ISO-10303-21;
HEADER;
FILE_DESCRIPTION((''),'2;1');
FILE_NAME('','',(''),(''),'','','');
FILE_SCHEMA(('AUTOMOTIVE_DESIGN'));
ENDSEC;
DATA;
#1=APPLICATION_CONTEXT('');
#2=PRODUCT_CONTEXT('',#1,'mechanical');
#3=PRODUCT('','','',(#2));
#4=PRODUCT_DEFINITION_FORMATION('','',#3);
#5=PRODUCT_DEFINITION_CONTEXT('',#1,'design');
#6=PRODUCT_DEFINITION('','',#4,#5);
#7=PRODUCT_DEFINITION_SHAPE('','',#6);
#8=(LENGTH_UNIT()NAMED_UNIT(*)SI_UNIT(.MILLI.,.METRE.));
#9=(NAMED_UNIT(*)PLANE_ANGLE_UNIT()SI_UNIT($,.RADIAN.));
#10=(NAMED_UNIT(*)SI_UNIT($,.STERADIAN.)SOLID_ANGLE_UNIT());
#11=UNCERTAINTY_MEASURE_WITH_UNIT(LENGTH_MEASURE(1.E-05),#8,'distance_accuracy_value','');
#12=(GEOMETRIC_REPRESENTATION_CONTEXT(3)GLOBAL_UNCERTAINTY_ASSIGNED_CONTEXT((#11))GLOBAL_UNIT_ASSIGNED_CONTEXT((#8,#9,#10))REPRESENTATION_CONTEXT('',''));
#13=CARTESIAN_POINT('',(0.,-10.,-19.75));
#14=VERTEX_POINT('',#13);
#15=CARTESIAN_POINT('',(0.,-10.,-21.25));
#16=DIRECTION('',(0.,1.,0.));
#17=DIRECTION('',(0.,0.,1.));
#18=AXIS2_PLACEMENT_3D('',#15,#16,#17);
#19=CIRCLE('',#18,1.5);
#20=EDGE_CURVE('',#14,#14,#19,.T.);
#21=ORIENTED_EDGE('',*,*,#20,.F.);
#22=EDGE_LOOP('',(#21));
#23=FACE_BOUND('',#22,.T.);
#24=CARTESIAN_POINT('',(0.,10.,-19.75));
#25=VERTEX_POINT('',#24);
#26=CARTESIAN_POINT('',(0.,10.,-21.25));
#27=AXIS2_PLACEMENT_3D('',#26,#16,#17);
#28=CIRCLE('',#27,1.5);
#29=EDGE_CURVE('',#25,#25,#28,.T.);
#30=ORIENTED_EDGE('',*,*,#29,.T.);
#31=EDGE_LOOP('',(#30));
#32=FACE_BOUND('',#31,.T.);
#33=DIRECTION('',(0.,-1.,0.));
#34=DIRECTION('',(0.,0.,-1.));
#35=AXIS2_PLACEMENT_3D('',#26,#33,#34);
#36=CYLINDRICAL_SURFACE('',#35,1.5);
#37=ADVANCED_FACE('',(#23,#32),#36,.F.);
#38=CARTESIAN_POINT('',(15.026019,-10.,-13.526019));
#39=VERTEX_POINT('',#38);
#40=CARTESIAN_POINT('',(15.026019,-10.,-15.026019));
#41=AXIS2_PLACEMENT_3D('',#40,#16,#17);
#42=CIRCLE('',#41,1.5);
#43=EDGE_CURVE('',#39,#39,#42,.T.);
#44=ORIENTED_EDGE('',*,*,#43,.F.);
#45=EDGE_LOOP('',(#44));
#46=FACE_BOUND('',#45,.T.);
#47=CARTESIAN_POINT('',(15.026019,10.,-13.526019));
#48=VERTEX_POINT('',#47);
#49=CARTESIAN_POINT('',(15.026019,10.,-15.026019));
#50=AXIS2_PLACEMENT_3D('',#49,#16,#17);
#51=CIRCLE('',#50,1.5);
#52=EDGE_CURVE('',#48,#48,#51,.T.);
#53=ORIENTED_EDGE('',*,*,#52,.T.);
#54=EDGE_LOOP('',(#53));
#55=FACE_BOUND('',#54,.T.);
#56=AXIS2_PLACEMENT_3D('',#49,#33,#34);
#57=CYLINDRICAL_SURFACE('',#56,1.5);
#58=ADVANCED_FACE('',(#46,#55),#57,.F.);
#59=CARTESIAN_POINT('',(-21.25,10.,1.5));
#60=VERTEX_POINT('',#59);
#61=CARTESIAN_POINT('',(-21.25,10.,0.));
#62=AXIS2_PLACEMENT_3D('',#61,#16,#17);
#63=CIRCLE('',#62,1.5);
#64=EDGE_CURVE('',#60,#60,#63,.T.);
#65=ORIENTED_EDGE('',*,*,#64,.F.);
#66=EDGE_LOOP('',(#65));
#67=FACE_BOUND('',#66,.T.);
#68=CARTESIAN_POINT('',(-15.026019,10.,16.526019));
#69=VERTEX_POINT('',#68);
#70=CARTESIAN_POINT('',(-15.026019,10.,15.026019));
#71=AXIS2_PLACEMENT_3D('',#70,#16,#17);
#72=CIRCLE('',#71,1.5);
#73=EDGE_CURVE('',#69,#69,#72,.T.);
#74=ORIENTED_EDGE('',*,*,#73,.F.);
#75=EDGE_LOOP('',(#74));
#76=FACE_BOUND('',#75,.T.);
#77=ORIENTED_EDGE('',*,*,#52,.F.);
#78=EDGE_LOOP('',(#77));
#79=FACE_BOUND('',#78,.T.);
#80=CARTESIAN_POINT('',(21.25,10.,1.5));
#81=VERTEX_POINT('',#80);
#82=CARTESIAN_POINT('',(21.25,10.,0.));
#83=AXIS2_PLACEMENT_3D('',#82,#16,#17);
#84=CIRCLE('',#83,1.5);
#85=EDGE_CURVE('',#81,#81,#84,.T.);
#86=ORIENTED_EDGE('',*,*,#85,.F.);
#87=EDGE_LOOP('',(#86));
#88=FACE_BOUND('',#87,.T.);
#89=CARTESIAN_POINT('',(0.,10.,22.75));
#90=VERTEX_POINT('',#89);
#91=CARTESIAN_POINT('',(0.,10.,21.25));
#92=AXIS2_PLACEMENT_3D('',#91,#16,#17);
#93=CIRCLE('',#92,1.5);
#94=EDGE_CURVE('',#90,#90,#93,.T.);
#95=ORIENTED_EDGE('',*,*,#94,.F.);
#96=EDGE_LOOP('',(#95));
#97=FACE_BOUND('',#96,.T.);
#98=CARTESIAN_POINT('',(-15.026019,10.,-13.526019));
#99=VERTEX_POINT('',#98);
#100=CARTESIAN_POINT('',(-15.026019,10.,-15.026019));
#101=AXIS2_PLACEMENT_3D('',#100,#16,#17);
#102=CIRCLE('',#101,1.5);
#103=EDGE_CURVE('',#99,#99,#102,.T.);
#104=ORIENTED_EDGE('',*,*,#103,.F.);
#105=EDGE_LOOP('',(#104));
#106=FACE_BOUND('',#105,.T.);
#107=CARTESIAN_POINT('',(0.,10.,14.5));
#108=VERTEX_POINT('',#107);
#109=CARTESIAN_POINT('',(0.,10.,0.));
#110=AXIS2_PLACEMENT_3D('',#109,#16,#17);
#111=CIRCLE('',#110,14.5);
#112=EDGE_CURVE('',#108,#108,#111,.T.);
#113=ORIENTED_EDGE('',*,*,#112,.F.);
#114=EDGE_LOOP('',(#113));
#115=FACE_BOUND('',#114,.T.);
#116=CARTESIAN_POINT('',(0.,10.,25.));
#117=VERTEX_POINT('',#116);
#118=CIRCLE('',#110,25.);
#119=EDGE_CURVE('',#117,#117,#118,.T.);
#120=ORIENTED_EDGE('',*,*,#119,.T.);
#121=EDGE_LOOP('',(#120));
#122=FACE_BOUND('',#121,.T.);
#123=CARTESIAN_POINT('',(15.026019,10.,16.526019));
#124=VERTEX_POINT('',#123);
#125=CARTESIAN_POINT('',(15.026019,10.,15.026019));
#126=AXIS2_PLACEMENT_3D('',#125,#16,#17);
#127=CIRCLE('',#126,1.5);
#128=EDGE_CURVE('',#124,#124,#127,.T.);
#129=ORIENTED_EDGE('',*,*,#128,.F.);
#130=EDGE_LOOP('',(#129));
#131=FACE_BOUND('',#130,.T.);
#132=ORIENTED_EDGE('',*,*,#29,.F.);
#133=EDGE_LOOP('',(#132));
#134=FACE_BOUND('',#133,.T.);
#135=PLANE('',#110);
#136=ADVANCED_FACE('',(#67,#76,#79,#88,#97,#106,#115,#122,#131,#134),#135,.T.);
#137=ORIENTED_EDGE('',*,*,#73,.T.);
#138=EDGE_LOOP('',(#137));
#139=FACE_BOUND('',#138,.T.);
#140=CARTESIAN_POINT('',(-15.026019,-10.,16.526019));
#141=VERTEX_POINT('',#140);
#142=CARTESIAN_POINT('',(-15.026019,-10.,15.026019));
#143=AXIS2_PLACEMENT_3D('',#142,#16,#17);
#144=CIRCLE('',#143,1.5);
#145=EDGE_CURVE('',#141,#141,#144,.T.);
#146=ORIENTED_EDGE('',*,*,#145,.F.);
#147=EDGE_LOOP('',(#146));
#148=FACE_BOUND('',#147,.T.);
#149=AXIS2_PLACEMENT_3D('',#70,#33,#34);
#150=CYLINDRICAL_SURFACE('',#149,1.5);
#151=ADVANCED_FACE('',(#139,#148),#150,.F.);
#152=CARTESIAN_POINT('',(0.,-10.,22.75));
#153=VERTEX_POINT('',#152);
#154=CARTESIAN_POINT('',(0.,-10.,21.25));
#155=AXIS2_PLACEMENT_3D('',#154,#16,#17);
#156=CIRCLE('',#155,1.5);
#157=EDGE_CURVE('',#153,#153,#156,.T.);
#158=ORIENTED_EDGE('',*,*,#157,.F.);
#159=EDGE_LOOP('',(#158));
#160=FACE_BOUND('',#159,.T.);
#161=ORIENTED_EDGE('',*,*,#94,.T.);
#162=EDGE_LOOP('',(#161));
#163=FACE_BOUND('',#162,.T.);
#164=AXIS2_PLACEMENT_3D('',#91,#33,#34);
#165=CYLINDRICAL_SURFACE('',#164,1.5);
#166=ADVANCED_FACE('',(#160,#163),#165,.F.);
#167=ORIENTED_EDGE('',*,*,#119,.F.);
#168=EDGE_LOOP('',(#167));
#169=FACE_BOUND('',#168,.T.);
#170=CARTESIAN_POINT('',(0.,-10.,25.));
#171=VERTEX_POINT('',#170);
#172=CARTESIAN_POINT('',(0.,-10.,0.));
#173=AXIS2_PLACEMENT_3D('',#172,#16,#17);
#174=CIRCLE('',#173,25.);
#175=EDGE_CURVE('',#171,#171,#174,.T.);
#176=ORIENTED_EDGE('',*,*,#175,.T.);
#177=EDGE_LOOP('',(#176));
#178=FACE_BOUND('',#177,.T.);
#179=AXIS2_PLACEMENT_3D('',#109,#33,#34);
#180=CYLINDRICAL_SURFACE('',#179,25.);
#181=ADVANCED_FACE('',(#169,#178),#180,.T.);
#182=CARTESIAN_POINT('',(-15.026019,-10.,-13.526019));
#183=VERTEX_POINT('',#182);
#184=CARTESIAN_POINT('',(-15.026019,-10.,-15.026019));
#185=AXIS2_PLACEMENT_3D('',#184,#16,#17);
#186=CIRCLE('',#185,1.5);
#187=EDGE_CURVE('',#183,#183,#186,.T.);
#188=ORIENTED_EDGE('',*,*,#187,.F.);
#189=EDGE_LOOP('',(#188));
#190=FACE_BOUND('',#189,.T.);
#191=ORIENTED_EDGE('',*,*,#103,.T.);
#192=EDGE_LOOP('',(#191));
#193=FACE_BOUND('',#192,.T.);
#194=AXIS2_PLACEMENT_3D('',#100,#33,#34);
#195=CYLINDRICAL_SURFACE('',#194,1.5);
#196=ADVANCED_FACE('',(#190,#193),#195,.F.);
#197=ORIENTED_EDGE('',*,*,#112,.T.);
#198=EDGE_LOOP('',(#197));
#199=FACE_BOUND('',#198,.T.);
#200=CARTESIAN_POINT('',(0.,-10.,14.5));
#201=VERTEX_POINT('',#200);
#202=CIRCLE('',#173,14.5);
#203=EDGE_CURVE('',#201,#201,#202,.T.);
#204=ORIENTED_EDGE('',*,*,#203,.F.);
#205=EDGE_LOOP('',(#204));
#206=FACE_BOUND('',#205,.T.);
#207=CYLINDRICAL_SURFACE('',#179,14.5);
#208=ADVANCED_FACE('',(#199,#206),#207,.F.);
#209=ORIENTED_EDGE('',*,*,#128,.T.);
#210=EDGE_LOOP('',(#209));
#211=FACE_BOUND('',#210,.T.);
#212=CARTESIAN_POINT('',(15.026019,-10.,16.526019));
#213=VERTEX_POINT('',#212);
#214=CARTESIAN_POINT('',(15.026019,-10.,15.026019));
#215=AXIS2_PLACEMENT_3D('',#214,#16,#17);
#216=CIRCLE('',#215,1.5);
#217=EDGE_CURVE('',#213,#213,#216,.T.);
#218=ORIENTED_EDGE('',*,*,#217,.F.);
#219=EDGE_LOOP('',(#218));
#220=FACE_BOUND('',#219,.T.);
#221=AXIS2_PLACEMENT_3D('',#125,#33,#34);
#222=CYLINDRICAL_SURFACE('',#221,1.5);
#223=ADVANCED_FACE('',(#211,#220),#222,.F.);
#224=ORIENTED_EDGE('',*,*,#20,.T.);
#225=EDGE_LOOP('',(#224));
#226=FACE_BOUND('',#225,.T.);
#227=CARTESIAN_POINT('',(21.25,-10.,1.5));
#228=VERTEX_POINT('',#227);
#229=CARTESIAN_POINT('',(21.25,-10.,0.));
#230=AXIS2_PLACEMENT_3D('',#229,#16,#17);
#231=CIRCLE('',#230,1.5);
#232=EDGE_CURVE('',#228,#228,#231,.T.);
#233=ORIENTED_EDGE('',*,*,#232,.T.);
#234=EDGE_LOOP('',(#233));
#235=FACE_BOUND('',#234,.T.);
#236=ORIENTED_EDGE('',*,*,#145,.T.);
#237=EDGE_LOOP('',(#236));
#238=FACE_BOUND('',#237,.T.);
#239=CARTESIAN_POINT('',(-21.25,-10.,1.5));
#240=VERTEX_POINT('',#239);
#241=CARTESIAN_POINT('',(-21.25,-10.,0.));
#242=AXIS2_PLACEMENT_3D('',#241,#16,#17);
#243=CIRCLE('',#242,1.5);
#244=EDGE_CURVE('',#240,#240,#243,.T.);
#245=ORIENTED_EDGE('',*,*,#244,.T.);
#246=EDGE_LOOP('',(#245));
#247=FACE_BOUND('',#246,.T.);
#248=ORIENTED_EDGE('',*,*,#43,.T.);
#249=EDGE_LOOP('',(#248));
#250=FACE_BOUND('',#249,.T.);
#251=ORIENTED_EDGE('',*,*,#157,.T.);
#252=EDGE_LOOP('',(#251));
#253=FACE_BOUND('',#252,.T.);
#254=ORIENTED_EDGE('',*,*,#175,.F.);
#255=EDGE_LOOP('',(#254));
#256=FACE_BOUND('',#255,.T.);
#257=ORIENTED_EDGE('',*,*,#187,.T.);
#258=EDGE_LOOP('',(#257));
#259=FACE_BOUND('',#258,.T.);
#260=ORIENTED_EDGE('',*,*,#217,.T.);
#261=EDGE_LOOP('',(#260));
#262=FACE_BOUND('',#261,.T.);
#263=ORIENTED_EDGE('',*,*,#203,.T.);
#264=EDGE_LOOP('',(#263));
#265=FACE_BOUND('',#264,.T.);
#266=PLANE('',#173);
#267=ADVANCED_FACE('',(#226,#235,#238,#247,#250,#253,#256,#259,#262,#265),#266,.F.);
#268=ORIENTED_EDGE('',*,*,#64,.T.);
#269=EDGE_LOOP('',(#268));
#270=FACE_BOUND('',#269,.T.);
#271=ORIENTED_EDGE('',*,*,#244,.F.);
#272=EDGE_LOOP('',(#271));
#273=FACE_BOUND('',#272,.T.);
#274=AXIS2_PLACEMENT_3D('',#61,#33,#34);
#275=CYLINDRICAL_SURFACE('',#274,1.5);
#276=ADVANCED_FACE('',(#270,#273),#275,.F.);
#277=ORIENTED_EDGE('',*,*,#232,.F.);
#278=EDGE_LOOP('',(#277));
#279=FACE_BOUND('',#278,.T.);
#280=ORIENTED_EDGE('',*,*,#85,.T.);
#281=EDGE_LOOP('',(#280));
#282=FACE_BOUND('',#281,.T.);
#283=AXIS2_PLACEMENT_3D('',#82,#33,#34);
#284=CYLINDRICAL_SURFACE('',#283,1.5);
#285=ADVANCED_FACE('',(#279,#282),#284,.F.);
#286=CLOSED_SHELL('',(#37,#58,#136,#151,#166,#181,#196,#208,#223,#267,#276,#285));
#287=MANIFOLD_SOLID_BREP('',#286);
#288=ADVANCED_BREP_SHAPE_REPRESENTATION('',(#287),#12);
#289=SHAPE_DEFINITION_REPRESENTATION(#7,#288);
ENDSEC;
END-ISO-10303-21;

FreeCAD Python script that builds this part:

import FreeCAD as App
import Part
import Sketcher
from FreeCAD import Vector
Q = App.Units.Quantity

doc = App.newDocument("Part")
body = doc.addObject("PartDesign::Body", "Body")

# Sketch on XZ plane
sketch1 = body.newObject("Sketcher::SketchObject", "Sketch")
sketch1.AttachmentSupport = (doc.getObject("XZ_Plane"), [""])
sketch1.MapMode = "FlatFace"
sketch1.addGeometry(Part.Circle(Vector(0, 0, 0), Vector(0, 0, 1), 25), False)
sketch1.addGeometry(Part.Circle(Vector(-15, -15, 0), Vector(0, 0, 1), 1.5), False)
sketch1.addGeometry(Part.Circle(Vector(0, -21.2, 0), Vector(0, 0, 1), 1.5), False)
sketch1.addGeometry(Part.Circle(Vector(-21.2, 0, 0), Vector(0, 0, 1), 1.5), False)
sketch1.addGeometry(Part.Circle(Vector(-15, 15, 0), Vector(0, 0, 1), 1.5), False)
sketch1.addGeometry(Part.Circle(Vector(15, -15, 0), Vector(0, 0, 1), 1.5), False)
sketch1.addGeometry(Part.Circle(Vector(21.2, 0, 0), Vector(0, 0, 1), 1.5), False)
sketch1.addGeometry(Part.Circle(Vector(0, 0, 0), Vector(0, 0, 1), 14.5), False)
sketch1.addGeometry(Part.Circle(Vector(0, 21.2, 0), Vector(0, 0, 1), 1.5), False)
sketch1.addGeometry(Part.Circle(Vector(15, 15, 0), Vector(0, 0, 1), 1.5), False)
sketch1.addConstraint(Sketcher.Constraint("Coincident", 0, 3, -1, 1))
sketch1.addConstraint(Sketcher.Constraint("Coincident", 7, 3, -1, 1))
sketch1.addConstraint(Sketcher.Constraint("Equal", 1, 2))
sketch1.addConstraint(Sketcher.Constraint("Equal", 2, 3))
sketch1.addConstraint(Sketcher.Constraint("Equal", 3, 4))
sketch1.addConstraint(Sketcher.Constraint("Equal", 4, 5))
sketch1.addConstraint(Sketcher.Constraint("Equal", 5, 6))
sketch1.addConstraint(Sketcher.Constraint("Equal", 6, 8))
sketch1.addConstraint(Sketcher.Constraint("Equal", 8, 9))
sketch1.addConstraint(Sketcher.Constraint("Symmetric", 4, 3, 5, 3, -1, 1))
sketch1.addConstraint(Sketcher.Constraint("Symmetric", 3, 3, 6, 3, -1, 1))
sketch1.addConstraint(Sketcher.Constraint("Symmetric", 2, 3, 8, 3, -1, 1))
sketch1.addConstraint(Sketcher.Constraint("Symmetric", 1, 3, 9, 3, -1, 1))
sketch1.addConstraint(Sketcher.Constraint("Symmetric", 1, 3, 5, 3, -2))
sketch1.addConstraint(Sketcher.Constraint("PointOnObject", 2, 3, -2))
sketch1.addConstraint(Sketcher.Constraint("PointOnObject", 3, 3, -1))
sketch1.addConstraint(Sketcher.Constraint("Diameter", 0, Q("50 mm")))
sketch1.addConstraint(Sketcher.Constraint("Diameter", 1, Q("3 mm")))
sketch1.addConstraint(Sketcher.Constraint("Diameter", 7, Q("29 mm")))
sketch1.addConstraint(Sketcher.Constraint("DistanceY", 2, 3, -1, 1, Q("21.25 mm")))
sketch1.addConstraint(Sketcher.Constraint("DistanceX", 3, 3, -1, 1, Q("21.25 mm")))
sketch1.addConstraint(Sketcher.Constraint("DistanceX", 1, 3, -1, 1, Q("15.026019 mm")))
sketch1.addConstraint(Sketcher.Constraint("DistanceY", 1, 3, -1, 1, Q("15.026019 mm")))
pad1 = body.newObject("PartDesign::Pad", "Pad")
pad1.Profile = sketch1
pad1.Length = 20
pad1.Midplane = True

doc.recompute()
